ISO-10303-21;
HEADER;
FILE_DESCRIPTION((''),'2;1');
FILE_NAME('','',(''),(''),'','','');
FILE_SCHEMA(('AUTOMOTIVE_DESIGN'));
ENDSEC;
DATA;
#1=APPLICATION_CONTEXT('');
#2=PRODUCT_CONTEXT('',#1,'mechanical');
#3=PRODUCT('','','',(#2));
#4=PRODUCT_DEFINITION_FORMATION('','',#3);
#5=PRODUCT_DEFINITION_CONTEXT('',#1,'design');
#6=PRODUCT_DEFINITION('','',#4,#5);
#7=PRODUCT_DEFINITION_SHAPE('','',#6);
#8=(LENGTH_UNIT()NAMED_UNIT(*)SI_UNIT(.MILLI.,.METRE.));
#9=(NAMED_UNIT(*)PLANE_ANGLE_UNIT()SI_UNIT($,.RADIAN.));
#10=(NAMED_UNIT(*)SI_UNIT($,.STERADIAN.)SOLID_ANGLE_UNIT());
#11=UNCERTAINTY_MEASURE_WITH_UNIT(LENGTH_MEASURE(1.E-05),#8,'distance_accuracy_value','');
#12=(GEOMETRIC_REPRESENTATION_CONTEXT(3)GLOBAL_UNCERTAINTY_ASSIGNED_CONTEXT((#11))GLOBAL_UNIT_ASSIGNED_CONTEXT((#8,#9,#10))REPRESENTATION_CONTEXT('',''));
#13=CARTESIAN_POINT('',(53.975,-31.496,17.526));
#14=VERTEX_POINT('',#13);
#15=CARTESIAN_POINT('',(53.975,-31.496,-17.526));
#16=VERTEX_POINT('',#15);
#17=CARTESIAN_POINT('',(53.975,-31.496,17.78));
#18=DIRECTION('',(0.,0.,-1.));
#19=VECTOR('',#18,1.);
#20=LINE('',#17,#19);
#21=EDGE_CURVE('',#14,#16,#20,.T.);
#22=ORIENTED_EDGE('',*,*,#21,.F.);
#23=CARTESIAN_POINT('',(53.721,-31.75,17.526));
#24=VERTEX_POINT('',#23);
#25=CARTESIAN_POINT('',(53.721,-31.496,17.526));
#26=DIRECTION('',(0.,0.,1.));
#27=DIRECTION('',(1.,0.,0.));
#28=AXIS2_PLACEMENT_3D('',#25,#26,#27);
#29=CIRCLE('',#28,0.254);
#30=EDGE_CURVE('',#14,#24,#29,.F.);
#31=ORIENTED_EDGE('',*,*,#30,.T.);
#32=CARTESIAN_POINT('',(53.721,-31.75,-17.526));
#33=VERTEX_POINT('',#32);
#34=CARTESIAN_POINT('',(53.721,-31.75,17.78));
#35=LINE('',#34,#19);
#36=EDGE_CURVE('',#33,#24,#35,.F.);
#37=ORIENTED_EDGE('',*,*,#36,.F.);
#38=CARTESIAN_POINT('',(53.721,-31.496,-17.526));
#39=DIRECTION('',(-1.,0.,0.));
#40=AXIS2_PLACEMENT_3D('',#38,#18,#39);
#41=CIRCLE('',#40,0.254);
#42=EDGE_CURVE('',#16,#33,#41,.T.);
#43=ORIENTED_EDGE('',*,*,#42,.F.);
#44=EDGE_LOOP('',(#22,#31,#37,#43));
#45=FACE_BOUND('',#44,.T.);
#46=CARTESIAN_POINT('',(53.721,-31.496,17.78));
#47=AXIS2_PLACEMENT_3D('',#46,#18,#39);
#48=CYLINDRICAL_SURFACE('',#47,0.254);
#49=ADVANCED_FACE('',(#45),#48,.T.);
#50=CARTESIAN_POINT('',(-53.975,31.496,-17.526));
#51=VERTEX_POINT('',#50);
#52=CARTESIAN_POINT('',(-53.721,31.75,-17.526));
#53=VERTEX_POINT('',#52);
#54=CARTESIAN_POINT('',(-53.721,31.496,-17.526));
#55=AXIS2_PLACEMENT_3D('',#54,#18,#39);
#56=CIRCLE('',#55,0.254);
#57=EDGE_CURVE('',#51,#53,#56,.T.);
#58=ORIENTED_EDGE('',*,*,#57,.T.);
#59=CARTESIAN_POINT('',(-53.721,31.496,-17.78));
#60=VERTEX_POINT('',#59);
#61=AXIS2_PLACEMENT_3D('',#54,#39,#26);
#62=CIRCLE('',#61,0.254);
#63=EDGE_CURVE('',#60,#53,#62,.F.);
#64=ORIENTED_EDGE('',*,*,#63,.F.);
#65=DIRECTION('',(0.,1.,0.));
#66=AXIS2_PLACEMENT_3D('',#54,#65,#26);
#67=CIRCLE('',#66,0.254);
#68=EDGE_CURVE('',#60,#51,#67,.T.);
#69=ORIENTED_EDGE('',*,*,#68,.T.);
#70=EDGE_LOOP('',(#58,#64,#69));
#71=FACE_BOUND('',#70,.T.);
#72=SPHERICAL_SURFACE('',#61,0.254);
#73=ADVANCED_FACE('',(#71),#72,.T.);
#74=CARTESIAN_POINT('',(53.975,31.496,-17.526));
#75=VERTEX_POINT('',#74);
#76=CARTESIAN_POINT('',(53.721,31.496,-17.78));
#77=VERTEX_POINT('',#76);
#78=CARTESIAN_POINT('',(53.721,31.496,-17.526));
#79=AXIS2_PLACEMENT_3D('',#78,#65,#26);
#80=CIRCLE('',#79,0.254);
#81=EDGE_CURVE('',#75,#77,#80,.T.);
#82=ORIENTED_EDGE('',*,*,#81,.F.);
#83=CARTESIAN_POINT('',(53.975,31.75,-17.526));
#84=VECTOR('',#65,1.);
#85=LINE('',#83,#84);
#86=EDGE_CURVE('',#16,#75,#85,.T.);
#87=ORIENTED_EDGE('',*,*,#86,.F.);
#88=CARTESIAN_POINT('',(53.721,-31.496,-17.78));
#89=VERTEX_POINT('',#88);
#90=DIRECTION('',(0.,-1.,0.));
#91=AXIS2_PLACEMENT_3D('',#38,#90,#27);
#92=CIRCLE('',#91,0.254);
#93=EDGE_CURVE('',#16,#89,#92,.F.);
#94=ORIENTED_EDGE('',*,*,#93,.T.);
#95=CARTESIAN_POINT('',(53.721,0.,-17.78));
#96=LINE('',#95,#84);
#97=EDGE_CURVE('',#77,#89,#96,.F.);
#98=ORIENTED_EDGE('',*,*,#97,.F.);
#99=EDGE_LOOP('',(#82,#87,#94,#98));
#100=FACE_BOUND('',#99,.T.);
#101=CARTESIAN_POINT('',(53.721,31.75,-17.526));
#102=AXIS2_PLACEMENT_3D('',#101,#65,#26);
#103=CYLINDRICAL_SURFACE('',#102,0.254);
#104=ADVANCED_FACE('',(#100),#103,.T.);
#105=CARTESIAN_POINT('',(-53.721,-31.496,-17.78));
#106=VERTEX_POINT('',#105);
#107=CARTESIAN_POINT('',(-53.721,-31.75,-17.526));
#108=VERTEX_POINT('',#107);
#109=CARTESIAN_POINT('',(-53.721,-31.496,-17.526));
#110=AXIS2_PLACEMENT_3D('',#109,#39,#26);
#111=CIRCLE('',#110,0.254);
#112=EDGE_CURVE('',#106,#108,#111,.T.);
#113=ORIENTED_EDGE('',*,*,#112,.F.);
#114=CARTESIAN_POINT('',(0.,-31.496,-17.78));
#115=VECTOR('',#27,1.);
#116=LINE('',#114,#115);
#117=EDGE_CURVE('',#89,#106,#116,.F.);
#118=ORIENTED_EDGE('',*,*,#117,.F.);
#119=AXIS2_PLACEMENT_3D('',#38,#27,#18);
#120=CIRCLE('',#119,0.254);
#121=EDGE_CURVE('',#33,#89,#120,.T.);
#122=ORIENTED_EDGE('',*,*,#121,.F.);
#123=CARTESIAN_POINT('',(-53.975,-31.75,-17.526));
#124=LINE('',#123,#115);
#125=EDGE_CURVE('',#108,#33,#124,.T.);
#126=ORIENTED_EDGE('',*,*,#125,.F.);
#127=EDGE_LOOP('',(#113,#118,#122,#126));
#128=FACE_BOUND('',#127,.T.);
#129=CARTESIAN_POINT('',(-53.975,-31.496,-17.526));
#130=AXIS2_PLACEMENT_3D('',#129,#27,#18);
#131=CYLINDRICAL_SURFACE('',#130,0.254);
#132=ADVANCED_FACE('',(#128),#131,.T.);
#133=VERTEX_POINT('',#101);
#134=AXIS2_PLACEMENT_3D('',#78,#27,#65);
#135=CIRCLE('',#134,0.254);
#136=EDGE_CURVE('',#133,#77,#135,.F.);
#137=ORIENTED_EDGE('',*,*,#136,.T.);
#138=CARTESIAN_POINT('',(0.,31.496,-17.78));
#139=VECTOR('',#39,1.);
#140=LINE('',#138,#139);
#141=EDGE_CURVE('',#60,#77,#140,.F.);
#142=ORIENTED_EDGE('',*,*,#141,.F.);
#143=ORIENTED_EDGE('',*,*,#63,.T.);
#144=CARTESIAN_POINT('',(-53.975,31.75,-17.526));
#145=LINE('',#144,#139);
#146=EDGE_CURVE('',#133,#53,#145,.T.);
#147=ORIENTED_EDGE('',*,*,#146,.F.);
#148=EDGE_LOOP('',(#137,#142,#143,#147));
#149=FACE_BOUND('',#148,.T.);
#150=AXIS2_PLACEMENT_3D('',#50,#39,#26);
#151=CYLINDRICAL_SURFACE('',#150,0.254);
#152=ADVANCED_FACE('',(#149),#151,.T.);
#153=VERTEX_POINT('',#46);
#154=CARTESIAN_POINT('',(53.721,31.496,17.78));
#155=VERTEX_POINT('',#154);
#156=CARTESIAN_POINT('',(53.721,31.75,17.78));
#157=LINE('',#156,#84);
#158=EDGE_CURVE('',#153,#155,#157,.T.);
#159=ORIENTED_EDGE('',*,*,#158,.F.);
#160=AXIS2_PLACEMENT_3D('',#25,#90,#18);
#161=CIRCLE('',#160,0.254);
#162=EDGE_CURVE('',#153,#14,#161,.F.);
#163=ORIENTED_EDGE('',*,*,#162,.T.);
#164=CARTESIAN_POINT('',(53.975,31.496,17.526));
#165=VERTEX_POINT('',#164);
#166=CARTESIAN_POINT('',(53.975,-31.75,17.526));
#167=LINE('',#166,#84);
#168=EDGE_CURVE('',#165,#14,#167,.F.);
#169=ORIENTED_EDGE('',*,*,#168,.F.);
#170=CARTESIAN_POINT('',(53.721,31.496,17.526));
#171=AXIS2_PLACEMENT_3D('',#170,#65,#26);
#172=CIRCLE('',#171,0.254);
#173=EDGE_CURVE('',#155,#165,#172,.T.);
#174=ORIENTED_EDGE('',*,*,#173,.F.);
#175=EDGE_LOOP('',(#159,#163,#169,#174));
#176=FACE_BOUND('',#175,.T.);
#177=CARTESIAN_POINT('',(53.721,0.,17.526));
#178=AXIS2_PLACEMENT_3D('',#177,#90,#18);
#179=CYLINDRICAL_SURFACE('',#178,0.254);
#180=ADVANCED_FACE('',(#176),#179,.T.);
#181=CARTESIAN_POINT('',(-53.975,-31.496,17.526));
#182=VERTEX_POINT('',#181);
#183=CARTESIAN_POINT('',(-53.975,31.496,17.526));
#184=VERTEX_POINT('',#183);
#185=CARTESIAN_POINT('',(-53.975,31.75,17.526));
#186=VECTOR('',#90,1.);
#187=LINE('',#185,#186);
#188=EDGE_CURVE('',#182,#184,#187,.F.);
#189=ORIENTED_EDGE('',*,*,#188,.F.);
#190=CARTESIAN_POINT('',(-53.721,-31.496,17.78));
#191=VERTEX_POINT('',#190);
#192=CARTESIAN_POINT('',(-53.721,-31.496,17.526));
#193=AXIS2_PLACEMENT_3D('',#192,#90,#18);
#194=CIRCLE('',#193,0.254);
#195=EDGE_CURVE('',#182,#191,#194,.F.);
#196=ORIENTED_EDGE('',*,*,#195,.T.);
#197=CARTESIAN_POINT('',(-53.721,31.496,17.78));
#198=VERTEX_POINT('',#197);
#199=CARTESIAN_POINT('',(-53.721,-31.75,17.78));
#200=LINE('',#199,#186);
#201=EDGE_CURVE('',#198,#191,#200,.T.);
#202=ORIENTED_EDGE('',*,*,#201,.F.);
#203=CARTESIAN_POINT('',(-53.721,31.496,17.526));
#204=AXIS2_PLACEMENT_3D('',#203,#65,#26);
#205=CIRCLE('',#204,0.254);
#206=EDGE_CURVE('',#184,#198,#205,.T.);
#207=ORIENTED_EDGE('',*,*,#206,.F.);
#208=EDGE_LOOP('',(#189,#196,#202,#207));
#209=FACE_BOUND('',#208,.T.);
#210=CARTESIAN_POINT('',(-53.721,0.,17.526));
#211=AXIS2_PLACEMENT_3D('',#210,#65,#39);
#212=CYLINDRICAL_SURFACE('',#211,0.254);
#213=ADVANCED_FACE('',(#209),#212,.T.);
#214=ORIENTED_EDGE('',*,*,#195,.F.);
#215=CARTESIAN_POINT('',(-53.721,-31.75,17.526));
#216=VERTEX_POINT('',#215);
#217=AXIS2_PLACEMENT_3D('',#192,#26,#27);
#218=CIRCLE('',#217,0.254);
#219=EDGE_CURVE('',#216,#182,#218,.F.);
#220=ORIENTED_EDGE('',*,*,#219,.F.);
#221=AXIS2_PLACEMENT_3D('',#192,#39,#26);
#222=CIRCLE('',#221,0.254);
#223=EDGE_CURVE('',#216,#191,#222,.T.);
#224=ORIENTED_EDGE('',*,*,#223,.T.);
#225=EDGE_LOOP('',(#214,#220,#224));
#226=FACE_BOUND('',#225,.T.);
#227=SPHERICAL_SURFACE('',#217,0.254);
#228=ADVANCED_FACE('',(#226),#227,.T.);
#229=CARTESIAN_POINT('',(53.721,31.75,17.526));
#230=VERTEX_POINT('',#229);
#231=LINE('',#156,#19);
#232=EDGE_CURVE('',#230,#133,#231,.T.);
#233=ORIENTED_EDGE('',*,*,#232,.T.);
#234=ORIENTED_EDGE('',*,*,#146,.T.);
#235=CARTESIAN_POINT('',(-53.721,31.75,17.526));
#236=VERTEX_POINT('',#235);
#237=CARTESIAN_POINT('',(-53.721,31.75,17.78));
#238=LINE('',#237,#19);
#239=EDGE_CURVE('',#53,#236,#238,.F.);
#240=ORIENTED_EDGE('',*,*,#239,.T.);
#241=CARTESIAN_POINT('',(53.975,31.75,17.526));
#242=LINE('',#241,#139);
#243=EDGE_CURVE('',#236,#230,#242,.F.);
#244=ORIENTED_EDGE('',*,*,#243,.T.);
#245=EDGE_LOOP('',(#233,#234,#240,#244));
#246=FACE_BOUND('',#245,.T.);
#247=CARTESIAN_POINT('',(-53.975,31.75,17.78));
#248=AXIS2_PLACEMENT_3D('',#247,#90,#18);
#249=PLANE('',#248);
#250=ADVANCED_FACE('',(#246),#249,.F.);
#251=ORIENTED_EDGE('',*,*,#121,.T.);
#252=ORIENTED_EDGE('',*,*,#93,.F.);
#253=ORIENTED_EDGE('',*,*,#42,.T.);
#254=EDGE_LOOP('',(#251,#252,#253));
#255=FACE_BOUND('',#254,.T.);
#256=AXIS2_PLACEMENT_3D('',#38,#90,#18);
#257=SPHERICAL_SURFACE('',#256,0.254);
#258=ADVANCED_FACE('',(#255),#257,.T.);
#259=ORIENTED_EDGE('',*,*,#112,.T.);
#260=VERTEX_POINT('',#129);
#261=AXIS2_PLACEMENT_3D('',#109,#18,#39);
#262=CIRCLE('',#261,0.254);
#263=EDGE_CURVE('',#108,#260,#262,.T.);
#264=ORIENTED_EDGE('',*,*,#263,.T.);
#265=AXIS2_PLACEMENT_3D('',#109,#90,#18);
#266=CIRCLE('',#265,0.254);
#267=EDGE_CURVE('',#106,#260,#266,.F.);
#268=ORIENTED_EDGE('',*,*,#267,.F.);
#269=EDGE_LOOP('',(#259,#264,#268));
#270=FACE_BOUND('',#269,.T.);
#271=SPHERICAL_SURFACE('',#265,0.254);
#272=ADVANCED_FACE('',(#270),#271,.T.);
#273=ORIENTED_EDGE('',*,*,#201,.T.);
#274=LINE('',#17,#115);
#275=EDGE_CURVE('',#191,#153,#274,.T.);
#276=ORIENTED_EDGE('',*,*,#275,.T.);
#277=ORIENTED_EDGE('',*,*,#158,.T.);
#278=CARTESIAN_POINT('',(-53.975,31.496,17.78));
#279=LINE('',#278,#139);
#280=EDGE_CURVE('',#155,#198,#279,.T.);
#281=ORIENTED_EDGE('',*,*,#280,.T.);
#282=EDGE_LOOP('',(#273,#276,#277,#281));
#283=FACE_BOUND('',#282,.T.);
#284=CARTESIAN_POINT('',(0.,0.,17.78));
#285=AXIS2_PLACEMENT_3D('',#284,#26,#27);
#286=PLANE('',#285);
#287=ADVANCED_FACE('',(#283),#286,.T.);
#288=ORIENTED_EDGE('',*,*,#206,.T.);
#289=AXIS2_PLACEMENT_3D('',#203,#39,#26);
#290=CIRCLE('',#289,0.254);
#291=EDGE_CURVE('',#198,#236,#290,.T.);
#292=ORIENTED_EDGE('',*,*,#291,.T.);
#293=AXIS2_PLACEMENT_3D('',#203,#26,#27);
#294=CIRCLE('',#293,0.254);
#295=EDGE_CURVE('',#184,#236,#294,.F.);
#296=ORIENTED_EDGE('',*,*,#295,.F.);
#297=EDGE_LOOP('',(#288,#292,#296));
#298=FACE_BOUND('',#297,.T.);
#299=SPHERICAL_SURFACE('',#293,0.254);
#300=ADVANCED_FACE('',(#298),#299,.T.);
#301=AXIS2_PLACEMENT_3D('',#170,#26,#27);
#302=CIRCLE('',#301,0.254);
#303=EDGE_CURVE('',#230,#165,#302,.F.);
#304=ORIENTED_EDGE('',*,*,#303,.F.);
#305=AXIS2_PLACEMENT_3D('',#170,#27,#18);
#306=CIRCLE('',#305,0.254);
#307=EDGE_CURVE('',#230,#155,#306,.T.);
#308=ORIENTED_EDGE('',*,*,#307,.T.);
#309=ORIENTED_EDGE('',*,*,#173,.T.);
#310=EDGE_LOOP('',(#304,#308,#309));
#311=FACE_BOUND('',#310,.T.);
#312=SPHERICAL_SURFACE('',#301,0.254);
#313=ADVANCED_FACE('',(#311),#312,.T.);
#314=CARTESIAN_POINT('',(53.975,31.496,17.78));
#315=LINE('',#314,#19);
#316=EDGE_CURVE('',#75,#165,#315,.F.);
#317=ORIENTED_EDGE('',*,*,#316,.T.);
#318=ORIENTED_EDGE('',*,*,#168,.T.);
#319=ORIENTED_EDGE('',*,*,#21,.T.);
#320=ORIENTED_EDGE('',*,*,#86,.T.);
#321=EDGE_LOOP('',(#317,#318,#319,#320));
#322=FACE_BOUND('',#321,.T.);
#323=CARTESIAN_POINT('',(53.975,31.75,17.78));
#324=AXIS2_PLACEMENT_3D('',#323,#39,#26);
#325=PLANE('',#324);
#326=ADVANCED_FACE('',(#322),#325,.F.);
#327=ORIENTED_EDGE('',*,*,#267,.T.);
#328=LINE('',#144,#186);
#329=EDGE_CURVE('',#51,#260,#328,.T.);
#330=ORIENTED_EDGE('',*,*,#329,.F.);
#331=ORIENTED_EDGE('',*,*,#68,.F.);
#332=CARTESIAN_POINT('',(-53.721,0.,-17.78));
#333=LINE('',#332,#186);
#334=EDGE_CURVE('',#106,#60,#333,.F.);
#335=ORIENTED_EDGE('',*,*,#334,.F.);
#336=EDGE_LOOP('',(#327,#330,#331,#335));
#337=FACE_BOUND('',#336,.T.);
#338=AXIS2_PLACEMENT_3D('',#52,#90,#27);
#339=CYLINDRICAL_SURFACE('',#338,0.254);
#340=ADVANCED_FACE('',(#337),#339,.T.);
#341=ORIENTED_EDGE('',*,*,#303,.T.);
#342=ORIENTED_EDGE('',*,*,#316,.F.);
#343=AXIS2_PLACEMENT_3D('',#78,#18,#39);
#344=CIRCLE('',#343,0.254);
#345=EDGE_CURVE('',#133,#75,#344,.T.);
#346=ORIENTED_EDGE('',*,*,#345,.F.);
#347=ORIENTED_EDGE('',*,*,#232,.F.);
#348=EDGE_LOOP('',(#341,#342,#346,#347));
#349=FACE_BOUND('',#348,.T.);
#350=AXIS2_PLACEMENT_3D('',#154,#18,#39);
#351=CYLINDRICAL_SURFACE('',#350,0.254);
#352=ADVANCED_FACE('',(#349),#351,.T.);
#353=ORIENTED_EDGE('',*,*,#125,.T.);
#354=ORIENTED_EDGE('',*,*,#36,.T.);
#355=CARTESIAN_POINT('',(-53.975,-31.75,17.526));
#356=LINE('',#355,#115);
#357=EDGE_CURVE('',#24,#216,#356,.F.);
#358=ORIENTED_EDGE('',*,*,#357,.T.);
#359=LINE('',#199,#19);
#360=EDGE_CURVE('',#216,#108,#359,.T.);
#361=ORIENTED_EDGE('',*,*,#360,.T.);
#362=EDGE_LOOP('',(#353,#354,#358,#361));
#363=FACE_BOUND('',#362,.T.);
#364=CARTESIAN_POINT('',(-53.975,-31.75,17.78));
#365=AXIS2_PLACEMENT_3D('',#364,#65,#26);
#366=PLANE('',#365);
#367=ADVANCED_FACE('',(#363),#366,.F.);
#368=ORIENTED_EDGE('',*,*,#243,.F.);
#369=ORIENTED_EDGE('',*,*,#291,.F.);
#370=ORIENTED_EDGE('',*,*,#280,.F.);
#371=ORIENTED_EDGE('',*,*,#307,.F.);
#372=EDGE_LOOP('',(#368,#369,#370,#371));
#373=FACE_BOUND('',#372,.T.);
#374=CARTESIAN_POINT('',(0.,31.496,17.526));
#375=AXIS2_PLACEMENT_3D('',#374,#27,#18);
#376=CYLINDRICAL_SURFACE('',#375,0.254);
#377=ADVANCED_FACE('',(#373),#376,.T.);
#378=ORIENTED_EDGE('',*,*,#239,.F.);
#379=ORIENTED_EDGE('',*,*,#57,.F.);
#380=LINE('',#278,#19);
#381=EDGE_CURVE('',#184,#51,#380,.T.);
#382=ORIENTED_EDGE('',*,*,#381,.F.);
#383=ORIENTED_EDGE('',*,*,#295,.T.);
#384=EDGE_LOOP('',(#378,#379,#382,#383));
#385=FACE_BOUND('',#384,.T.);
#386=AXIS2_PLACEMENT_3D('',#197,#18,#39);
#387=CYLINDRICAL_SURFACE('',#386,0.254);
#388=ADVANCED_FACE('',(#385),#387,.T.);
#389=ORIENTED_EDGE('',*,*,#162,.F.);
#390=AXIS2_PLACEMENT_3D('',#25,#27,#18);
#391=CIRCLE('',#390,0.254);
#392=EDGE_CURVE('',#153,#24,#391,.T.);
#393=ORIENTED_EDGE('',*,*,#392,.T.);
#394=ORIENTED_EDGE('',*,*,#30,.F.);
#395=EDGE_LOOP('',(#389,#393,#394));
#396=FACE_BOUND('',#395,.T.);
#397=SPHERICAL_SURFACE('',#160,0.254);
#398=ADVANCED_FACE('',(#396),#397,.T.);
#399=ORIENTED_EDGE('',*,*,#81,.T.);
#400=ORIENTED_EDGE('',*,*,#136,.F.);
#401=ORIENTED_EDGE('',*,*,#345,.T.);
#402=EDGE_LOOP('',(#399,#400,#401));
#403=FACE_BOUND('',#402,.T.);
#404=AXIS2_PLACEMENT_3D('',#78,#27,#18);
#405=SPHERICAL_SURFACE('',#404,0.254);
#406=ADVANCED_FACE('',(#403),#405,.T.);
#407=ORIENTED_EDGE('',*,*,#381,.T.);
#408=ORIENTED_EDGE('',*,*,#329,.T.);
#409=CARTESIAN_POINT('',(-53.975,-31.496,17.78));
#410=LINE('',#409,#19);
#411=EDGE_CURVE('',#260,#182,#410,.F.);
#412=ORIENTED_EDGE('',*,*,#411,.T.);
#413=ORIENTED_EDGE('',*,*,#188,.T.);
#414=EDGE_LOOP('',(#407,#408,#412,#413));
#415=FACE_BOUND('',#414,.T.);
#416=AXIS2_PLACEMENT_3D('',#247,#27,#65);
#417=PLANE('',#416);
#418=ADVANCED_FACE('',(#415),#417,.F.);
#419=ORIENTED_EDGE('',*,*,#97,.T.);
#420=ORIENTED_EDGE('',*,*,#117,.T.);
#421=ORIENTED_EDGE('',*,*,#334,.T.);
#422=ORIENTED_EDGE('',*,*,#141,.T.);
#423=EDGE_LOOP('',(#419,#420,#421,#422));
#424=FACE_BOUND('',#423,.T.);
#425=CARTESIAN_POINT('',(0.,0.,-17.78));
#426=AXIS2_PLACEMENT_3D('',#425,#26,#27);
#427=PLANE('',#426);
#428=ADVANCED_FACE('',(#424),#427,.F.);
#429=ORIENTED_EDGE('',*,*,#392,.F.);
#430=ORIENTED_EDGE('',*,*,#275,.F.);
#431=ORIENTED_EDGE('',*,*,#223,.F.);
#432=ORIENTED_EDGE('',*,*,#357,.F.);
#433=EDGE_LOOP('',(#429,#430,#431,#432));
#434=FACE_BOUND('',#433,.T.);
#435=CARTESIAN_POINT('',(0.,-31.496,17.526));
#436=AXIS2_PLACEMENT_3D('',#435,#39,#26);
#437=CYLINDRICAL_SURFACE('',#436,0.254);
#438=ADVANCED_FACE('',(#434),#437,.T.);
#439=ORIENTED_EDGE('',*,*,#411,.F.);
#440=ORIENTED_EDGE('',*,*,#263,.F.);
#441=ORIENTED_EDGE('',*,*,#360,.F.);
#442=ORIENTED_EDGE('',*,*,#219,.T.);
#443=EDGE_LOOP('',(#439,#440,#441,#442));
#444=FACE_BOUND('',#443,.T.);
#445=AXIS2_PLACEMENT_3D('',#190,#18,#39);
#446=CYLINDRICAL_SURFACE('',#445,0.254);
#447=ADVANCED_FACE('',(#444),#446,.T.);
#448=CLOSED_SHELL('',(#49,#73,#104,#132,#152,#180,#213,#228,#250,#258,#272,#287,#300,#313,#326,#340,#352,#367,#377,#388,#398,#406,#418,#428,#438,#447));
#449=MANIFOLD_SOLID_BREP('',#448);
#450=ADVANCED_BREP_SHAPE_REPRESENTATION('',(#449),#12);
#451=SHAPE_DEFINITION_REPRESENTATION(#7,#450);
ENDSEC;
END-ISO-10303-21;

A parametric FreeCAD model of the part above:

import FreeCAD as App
import Part
import Sketcher

V = App.Vector
Q = App.Units.Quantity

doc = App.newDocument("Part")
params = doc.addObject("Spreadsheet::Sheet", "Params")
for row, (alias, value) in enumerate([
    ("sketch1_height", "2.5 in"),
    ("sketch1_width", "4.25 in"),
    ("pad1_length", "1.4 in"),
    ("fillet_radius", "0.01 in"),
], start=1):
    params.set(f"A{row}", alias)
    params.set(f"B{row}", "=" + value)
    params.setAlias(f"B{row}", alias)

body = doc.addObject("PartDesign::Body", "Body")

sketch1 = body.newObject("Sketcher::SketchObject", "Sketch")
sketch1.AttachmentSupport = (doc.getObject("XY_Plane"), [""])
sketch1.MapMode = "FlatFace"
sketch1.addGeometry(Part.LineSegment(V(-54, 32, 0), V(-54, -32, 0)), False)
sketch1.addGeometry(Part.LineSegment(V(-54, -32, 0), V(54, -32, 0)), False)
sketch1.addGeometry(Part.LineSegment(V(54, -32, 0), V(54, 32, 0)), False)
sketch1.addGeometry(Part.LineSegment(V(54, 32, 0), V(-54, 32, 0)), False)
sketch1.addConstraint(Sketcher.Constraint("Coincident", 0, 2, 1, 1))
sketch1.addConstraint(Sketcher.Constraint("Coincident", 1, 2, 2, 1))
sketch1.addConstraint(Sketcher.Constraint("Coincident", 2, 2, 3, 1))
sketch1.addConstraint(Sketcher.Constraint("Coincident", 3, 2, 0, 1))
sketch1.addConstraint(Sketcher.Constraint("Vertical", 0))
sketch1.addConstraint(Sketcher.Constraint("Horizontal", 1))
sketch1.addConstraint(Sketcher.Constraint("Vertical", 2))
sketch1.addConstraint(Sketcher.Constraint("Horizontal", 3))
sketch1.addConstraint(Sketcher.Constraint("Symmetric", 0, 2, 2, 2, -1, 1))
sketch1.addConstraint(Sketcher.Constraint("DistanceY", 0, 2, 0, 1, Q("2.5 in")))
sketch1.addConstraint(Sketcher.Constraint("DistanceX", 1, 1, 1, 2, Q("4.25 in")))
sketch1.setExpression("Constraints[9]", "Params.sketch1_height")
sketch1.setExpression("Constraints[10]", "Params.sketch1_width")
pad1 = body.newObject("PartDesign::Pad", "Pad")
pad1.Profile = sketch1
pad1.setExpression("Length", "Params.pad1_length")
pad1.Midplane = True
doc.recompute()

fillet = body.newObject("PartDesign::Fillet", "Fillet")
fillet.Base = (pad1, ["Edge1"])
fillet.UseAllEdges = True
fillet.setExpression("Radius", "Params.fillet_radius")

doc.recompute()
